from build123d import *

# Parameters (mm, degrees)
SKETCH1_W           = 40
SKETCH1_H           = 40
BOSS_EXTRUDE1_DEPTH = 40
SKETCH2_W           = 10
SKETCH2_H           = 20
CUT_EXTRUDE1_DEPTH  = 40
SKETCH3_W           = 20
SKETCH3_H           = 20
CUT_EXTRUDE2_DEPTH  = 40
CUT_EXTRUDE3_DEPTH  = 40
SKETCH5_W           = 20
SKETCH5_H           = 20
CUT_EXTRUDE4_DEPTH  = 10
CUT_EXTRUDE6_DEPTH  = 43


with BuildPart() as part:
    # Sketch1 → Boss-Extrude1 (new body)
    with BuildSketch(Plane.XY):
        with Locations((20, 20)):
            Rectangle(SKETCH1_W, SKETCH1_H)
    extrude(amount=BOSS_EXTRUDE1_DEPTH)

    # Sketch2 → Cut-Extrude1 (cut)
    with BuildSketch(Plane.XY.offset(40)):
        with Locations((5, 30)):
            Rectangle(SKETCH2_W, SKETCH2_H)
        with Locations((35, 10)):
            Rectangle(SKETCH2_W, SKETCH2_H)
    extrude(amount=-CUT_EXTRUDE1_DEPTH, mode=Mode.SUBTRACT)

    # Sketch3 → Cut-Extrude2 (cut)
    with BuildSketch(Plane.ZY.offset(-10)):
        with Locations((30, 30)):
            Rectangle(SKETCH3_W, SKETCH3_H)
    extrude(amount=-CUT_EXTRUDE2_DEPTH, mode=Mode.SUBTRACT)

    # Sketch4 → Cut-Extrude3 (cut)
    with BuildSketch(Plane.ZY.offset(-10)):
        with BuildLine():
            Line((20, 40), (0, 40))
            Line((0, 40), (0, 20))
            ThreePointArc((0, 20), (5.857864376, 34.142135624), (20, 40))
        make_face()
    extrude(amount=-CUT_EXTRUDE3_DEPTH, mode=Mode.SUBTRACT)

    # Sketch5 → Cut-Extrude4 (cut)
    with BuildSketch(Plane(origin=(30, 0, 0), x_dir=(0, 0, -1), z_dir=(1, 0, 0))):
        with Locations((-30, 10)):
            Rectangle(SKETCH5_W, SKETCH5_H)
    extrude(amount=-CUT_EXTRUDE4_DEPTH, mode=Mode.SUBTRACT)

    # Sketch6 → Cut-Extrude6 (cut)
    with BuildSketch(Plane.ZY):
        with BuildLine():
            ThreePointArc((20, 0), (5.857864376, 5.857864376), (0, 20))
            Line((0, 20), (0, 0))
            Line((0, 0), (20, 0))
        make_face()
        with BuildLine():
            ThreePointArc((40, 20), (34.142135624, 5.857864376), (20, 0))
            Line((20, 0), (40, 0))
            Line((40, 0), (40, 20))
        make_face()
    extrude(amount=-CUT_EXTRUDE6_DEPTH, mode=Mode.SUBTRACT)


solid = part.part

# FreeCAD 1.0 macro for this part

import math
import FreeCAD as App
import Part
import Sketcher


def add_polygon(sketch, points):
    """Adds a closed chain of lines whose ends are joined by coincident constraints."""
    first, n = sketch.GeometryCount, len(points)
    for a, b in zip(points, points[1:] + points[:1]):
        sketch.addGeometry(Part.LineSegment(App.Vector(*a, 0), App.Vector(*b, 0)), False)
    for i in range(n):
        sketch.addConstraint(Sketcher.Constraint("Coincident", first + i, 2, first + (i + 1) % n, 1))

doc = App.newDocument("Part")
body = doc.addObject("PartDesign::Body", "Body")

# Sketch on XY plane
sketch1 = body.newObject("Sketcher::SketchObject", "Sketch")
sketch1.AttachmentSupport = (doc.getObject("XY_Plane"), [""])
sketch1.MapMode = "FlatFace"
add_polygon(sketch1, [(0, 40), (0, 0), (40, 0), (40, 40)])  # lines 0-3
sketch1.addConstraint(Sketcher.Constraint("Vertical", 0))
sketch1.addConstraint(Sketcher.Constraint("Horizontal", 1))
sketch1.addConstraint(Sketcher.Constraint("Vertical", 2))
sketch1.addConstraint(Sketcher.Constraint("Horizontal", 3))
sketch1.addConstraint(Sketcher.Constraint("Coincident", 0, 2, -1, 1))
sketch1.addConstraint(Sketcher.Constraint("Equal", 3, 0))
sketch1.addConstraint(Sketcher.Constraint("DistanceX", 1, 1, 1, 2, 40.0))
pad1 = body.newObject("PartDesign::Pad", "Pad")
pad1.Profile = sketch1
pad1.Length = 40

# Sketch on XY plane
sketch2 = body.newObject("Sketcher::SketchObject", "Sketch001")
sketch2.AttachmentSupport = (doc.getObject("XY_Plane"), [""])
sketch2.MapMode = "FlatFace"
sketch2.AttachmentOffset = App.Placement(App.Vector(0, 0, 40), App.Rotation())
add_polygon(sketch2, [(0, 40), (0, 20), (10, 20), (10, 40)])  # lines 0-3
add_polygon(sketch2, [(30, 20), (30, 0), (40, 0), (40, 20)])  # lines 4-7
sketch2.addConstraint(Sketcher.Constraint("Vertical", 0))
sketch2.addConstraint(Sketcher.Constraint("Horizontal", 1))
sketch2.addConstraint(Sketcher.Constraint("Vertical", 2))
sketch2.addConstraint(Sketcher.Constraint("Horizontal", 3))
sketch2.addConstraint(Sketcher.Constraint("Vertical", 4))
sketch2.addConstraint(Sketcher.Constraint("Horizontal", 5))
sketch2.addConstraint(Sketcher.Constraint("Vertical", 6))
sketch2.addConstraint(Sketcher.Constraint("Horizontal", 7))
sketch2.addConstraint(Sketcher.Constraint("PointOnObject", 0, 2, -2))
sketch2.addConstraint(Sketcher.Constraint("PointOnObject", 4, 2, -1))
sketch2.addConstraint(Sketcher.Constraint("Horizontal", 1, 2, 6, 2))
sketch2.addConstraint(Sketcher.Constraint("Equal", 3, 5))
sketch2.addConstraint(Sketcher.Constraint("Equal", 2, 4))
sketch2.addConstraint(Sketcher.Constraint("DistanceX", 1, 1, 1, 2, 10.0))
sketch2.addConstraint(Sketcher.Constraint("DistanceY", 0, 2, 0, 1, 20.0))
sketch2.addConstraint(Sketcher.Constraint("DistanceX", -1, 1, 4, 2, 30.0))
pocket1 = body.newObject("PartDesign::Pocket", "Pocket")
pocket1.Profile = sketch2
pocket1.Length = 40

# Sketch on YZ plane
sketch3 = body.newObject("Sketcher::SketchObject", "Sketch002")
sketch3.AttachmentSupport = (doc.getObject("YZ_Plane"), [""])
sketch3.MapMode = "FlatFace"
sketch3.AttachmentOffset = App.Placement(App.Vector(0, 0, 10), App.Rotation())
add_polygon(sketch3, [(40, 20), (20, 20), (20, 40), (40, 40)])  # lines 0-3
sketch3.addConstraint(Sketcher.Constraint("Horizontal", 0))
sketch3.addConstraint(Sketcher.Constraint("Vertical", 1))
sketch3.addConstraint(Sketcher.Constraint("Horizontal", 2))
sketch3.addConstraint(Sketcher.Constraint("Vertical", 3))
sketch3.addConstraint(Sketcher.Constraint("Equal", 2, 1))
sketch3.addConstraint(Sketcher.Constraint("DistanceX", 0, 2, 0, 1, 20.0))
sketch3.addConstraint(Sketcher.Constraint("DistanceX", -1, 1, 0, 2, 20.0))
sketch3.addConstraint(Sketcher.Constraint("DistanceY", -1, 1, 0, 2, 20.0))
pocket2 = body.newObject("PartDesign::Pocket", "Pocket001")
pocket2.Profile = sketch3
pocket2.Length = 40
pocket2.Reversed = True

# Sketch on YZ plane
sketch4 = body.newObject("Sketcher::SketchObject", "Sketch003")
sketch4.AttachmentSupport = (doc.getObject("YZ_Plane"), [""])
sketch4.MapMode = "FlatFace"
sketch4.AttachmentOffset = App.Placement(App.Vector(0, 0, 10), App.Rotation())
sketch4.addGeometry(Part.LineSegment(App.Vector(40, 20, 0), App.Vector(40, 0, 0)), False)
sketch4.addGeometry(Part.LineSegment(App.Vector(40, 0, 0), App.Vector(20, 0, 0)), False)
sketch4.addGeometry(Part.ArcOfCircle(Part.Circle(App.Vector(20, 20, 0), App.Vector(0, 0, 1), 20), math.radians(-90), math.radians(0)), False)
sketch4.addConstraint(Sketcher.Constraint("Coincident", 0, 2, 1, 1))
sketch4.addConstraint(Sketcher.Constraint("Tangent", 1, 2, 2, 1))
sketch4.addConstraint(Sketcher.Constraint("Tangent", 2, 2, 0, 1))
sketch4.addConstraint(Sketcher.Constraint("Vertical", 0))
sketch4.addConstraint(Sketcher.Constraint("Horizontal", 1))
sketch4.addConstraint(Sketcher.Constraint("PointOnObject", 0, 2, -1))
sketch4.addConstraint(Sketcher.Constraint("Radius", 2, 20.0))
sketch4.addConstraint(Sketcher.Constraint("DistanceX", -1, 1, 2, 3, 20.0))
pocket3 = body.newObject("PartDesign::Pocket", "Pocket002")
pocket3.Profile = sketch4
pocket3.Length = 40
pocket3.Reversed = True

# Sketch on YZ plane
sketch5 = body.newObject("Sketcher::SketchObject", "Sketch004")
sketch5.AttachmentSupport = (doc.getObject("YZ_Plane"), [""])
sketch5.MapMode = "FlatFace"
sketch5.AttachmentOffset = App.Placement(App.Vector(0, 0, 30), App.Rotation())
add_polygon(sketch5, [(20, 40), (0, 40), (0, 20), (20, 20)])  # lines 0-3
sketch5.addConstraint(Sketcher.Constraint("Horizontal", 0))
sketch5.addConstraint(Sketcher.Constraint("Vertical", 1))
sketch5.addConstraint(Sketcher.Constraint("Horizontal", 2))
sketch5.addConstraint(Sketcher.Constraint("Vertical", 3))
sketch5.addConstraint(Sketcher.Constraint("PointOnObject", 0, 2, -2))
sketch5.addConstraint(Sketcher.Constraint("Equal", 2, 1))
sketch5.addConstraint(Sketcher.Constraint("DistanceX", 0, 2, 0, 1, 20.0))
sketch5.addConstraint(Sketcher.Constraint("DistanceY", -1, 1, 0, 2, 40.0))
pocket4 = body.newObject("PartDesign::Pocket", "Pocket003")
pocket4.Profile = sketch5
pocket4.Length = 10

# Sketch on YZ plane
sketch6 = body.newObject("Sketcher::SketchObject", "Sketch005")
sketch6.AttachmentSupport = (doc.getObject("YZ_Plane"), [""])
sketch6.MapMode = "FlatFace"
sketch6.addGeometry(Part.ArcOfCircle(Part.Circle(App.Vector(20, 20, 0), App.Vector(0, 0, 1), 20), math.radians(180), math.radians(270)), False)
sketch6.addGeometry(Part.LineSegment(App.Vector(20, 0, 0), App.Vector(0, 0, 0)), False)
sketch6.addGeometry(Part.LineSegment(App.Vector(0, 0, 0), App.Vector(0, 20, 0)), False)
sketch6.addGeometry(Part.ArcOfCircle(Part.Circle(App.Vector(20, 20, 0), App.Vector(0, 0, 1), 20), math.radians(90), math.radians(180)), False)
sketch6.addGeometry(Part.LineSegment(App.Vector(0, 20, 0), App.Vector(0, 40, 0)), False)
sketch6.addGeometry(Part.LineSegment(App.Vector(0, 40, 0), App.Vector(20, 40, 0)), False)
sketch6.addConstraint(Sketcher.Constraint("Tangent", 0, 2, 1, 1))
sketch6.addConstraint(Sketcher.Constraint("Coincident", 1, 2, 2, 1))
sketch6.addConstraint(Sketcher.Constraint("Tangent", 2, 2, 0, 1))
sketch6.addConstraint(Sketcher.Constraint("Tangent", 3, 2, 4, 1))
sketch6.addConstraint(Sketcher.Constraint("Coincident", 4, 2, 5, 1))
sketch6.addConstraint(Sketcher.Constraint("Tangent", 5, 2, 3, 1))
sketch6.addConstraint(Sketcher.Constraint("Horizontal", 1))
sketch6.addConstraint(Sketcher.Constraint("Vertical", 2))
sketch6.addConstraint(Sketcher.Constraint("Vertical", 4))
sketch6.addConstraint(Sketcher.Constraint("Horizontal", 5))
sketch6.addConstraint(Sketcher.Constraint("Coincident", 1, 2, -1, 1))
sketch6.addConstraint(Sketcher.Constraint("Coincident", 3, 3, 0, 3))
sketch6.addConstraint(Sketcher.Constraint("Equal", 0, 3))
sketch6.addConstraint(Sketcher.Constraint("Radius", 0, 20.0))
pocket5 = body.newObject("PartDesign::Pocket", "Pocket004")
pocket5.Profile = sketch6
pocket5.Length = 43
pocket5.Reversed = True

doc.recompute()
